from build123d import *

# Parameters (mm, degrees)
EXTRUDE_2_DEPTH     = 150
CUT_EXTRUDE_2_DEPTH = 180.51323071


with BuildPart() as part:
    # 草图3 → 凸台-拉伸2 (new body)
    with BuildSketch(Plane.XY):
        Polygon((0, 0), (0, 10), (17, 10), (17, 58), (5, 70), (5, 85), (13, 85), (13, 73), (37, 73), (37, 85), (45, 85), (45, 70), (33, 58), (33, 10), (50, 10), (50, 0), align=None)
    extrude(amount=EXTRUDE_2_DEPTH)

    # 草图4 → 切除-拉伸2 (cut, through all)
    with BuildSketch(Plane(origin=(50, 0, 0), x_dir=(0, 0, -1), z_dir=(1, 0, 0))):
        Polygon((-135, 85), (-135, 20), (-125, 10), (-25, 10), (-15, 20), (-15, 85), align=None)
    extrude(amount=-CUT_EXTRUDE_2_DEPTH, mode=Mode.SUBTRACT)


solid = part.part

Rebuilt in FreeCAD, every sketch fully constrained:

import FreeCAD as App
import Part
import Sketcher
from FreeCAD import Vector
Q = App.Units.Quantity


def add_polygon(sketch, points):
    """Adds a closed chain of lines whose ends are joined by coincident constraints."""
    first, n = sketch.GeometryCount, len(points)
    for a, b in zip(points, points[1:] + points[:1]):
        sketch.addGeometry(Part.LineSegment(App.Vector(*a, 0), App.Vector(*b, 0)), False)
    for i in range(n):
        sketch.addConstraint(Sketcher.Constraint("Coincident", first + i, 2, first + (i + 1) % n, 1))

doc = App.newDocument("Part")
body = doc.addObject("PartDesign::Body", "Body")

sketch1 = body.newObject("Sketcher::SketchObject", "Sketch")
sketch1.AttachmentSupport = (doc.getObject("XY_Plane"), [""])
sketch1.MapMode = "FlatFace"
add_polygon(sketch1, [(0, 10), (0, 0), (50, 0), (50, 10), (33, 10), (33, 58), (45, 70), (45, 85), (37, 85), (37, 73), (13, 73), (13, 85), (5, 85), (5, 70), (17, 58), (17, 10)])
sketch1.addConstraint([
    Sketcher.Constraint("Vertical", 0),
    Sketcher.Constraint("Horizontal", 1),
    Sketcher.Constraint("Vertical", 2),
    Sketcher.Constraint("Horizontal", 3),
    Sketcher.Constraint("Vertical", 4),
    Sketcher.Constraint("Vertical", 6),
    Sketcher.Constraint("Horizontal", 7),
    Sketcher.Constraint("Vertical", 8),
    Sketcher.Constraint("Horizontal", 9),
    Sketcher.Constraint("Vertical", 10),
    Sketcher.Constraint("Horizontal", 11),
    Sketcher.Constraint("Vertical", 12),
    Sketcher.Constraint("Vertical", 14),
    Sketcher.Constraint("Horizontal", 15),
    Sketcher.Constraint("Coincident", 0, 2, -1, 1),
    Sketcher.Constraint("Perpendicular", 5, 13),
    Sketcher.Constraint("Horizontal", 7, 2, 10, 2),
    Sketcher.Constraint("Horizontal", 5, 2, 12, 2),
    Sketcher.Constraint("Horizontal", 4, 2, 13, 2),
    Sketcher.Constraint("Horizontal", 3, 2, 14, 2),
    Sketcher.Constraint("Equal", 7, 11),
    Sketcher.Constraint("Equal", 3, 15),
    Sketcher.Constraint("Equal", 5, 13),
    Sketcher.Constraint("DistanceX", 1, 1, 1, 2, Q("50 mm")),
    Sketcher.Constraint("DistanceX", 3, 2, 3, 1, Q("17 mm")),
    Sketcher.Constraint("DistanceX", 7, 2, 7, 1, Q("8 mm")),
    Sketcher.Constraint("DistanceX", 9, 2, 9, 1, Q("24 mm")),
    Sketcher.Constraint("DistanceY", 0, 2, 0, 1, Q("10 mm")),
    Sketcher.Constraint("DistanceY", 4, 1, 4, 2, Q("48 mm")),
    Sketcher.Constraint("DistanceY", 6, 1, 6, 2, Q("15 mm")),
    Sketcher.Constraint("DistanceY", 8, 2, 8, 1, Q("12 mm")),
])
pad1 = body.newObject("PartDesign::Pad", "Pad")
pad1.Profile = sketch1
pad1.Length = 150

sketch2 = body.newObject("Sketcher::SketchObject", "Sketch001")
sketch2.AttachmentSupport = (doc.getObject("YZ_Plane"), [""])
sketch2.MapMode = "FlatFace"
sketch2.AttachmentOffset = App.Placement(Vector(0, 0, 50), App.Rotation())
add_polygon(sketch2, [(85, 135), (20, 135), (10, 125), (10, 25), (20, 15), (85, 15)])
sketch2.addConstraint([
    Sketcher.Constraint("Horizontal", 0),
    Sketcher.Constraint("Vertical", 2),
    Sketcher.Constraint("Horizontal", 4),
    Sketcher.Constraint("Vertical", 5),
    Sketcher.Constraint("Perpendicular", 1, 3),
    Sketcher.Constraint("Vertical", 0, 2, 3, 2),
    Sketcher.Constraint("Equal", 1, 3),
    Sketcher.Constraint("DistanceX", 0, 2, 0, 1, Q("65 mm")),
    Sketcher.Constraint("DistanceY", 2, 2, 2, 1, Q("100 mm")),
    Sketcher.Constraint("DistanceY", 5, 1, 5, 2, Q("120 mm")),
    Sketcher.Constraint("DistanceX", -1, 1, 0, 2, Q("20 mm")),
    Sketcher.Constraint("DistanceY", -1, 1, 0, 2, Q("135 mm")),
])
pocket1 = body.newObject("PartDesign::Pocket", "Pocket")
pocket1.Profile = sketch2
pocket1.Type = "ThroughAll"

doc.recompute()
